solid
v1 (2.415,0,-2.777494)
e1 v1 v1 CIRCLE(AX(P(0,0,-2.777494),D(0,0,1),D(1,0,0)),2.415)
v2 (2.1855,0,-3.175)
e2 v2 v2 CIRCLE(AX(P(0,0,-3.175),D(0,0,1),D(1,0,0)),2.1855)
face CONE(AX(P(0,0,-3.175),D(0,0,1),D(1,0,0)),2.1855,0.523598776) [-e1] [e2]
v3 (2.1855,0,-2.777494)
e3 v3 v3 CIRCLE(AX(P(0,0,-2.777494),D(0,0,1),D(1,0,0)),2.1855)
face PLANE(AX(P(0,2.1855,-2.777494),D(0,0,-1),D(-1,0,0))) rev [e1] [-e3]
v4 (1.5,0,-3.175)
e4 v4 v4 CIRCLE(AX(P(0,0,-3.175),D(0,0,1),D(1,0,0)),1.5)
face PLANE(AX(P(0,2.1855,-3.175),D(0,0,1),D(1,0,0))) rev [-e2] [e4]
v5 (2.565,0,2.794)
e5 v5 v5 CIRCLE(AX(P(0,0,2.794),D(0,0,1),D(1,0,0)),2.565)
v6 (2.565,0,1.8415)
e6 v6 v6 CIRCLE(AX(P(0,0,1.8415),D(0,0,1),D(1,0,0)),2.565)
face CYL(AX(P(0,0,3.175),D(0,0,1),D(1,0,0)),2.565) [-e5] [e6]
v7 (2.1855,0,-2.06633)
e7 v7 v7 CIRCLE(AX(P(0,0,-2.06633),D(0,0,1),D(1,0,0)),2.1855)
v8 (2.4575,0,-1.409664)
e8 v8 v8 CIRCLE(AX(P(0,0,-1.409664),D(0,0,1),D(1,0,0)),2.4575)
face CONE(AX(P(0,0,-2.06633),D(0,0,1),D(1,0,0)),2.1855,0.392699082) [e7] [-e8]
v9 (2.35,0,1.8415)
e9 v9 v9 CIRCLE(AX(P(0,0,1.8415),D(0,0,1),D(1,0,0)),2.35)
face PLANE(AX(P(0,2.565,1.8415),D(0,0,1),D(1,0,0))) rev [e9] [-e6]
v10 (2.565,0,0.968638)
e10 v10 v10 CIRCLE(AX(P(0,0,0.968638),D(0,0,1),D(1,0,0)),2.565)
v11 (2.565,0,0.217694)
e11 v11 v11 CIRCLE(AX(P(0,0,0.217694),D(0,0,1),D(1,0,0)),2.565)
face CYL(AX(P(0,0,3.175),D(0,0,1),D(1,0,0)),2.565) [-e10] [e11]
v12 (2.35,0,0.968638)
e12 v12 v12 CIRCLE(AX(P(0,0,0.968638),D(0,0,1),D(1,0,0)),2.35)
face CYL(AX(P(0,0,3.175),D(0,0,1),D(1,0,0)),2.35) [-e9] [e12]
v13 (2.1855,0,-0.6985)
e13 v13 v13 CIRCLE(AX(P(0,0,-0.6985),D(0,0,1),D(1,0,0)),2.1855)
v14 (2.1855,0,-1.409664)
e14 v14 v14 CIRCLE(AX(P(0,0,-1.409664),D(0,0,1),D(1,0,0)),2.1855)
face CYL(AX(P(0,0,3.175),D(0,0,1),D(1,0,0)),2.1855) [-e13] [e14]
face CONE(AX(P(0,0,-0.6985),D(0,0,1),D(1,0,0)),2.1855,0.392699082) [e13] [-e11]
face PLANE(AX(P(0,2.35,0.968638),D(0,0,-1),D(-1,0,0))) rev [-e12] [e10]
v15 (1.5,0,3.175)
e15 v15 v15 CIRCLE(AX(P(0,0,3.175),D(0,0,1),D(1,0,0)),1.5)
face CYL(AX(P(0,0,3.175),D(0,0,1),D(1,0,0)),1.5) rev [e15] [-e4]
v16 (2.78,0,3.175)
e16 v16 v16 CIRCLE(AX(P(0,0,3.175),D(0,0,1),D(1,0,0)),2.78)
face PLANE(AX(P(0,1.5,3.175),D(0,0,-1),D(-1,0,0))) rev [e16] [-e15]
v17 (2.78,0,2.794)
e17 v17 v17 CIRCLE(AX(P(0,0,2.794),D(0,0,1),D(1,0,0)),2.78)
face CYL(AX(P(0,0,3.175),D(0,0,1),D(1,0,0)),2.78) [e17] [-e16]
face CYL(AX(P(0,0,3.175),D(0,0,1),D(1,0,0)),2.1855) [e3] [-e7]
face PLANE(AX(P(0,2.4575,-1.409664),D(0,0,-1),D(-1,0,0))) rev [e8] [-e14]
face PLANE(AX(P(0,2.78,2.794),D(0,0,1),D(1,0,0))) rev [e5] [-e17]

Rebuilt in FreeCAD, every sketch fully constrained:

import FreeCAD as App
import Part
import Sketcher

V = App.Vector
Q = App.Units.Quantity

doc = App.newDocument("Part")
body = doc.addObject("PartDesign::Body", "Body")

sketch1 = body.newObject("Sketcher::SketchObject", "Sketch")
sketch1.AttachmentSupport = (doc.getObject("YZ_Plane"), [""])
sketch1.MapMode = "FlatFace"
sketch1.addGeometry([
    Part.LineSegment(V(2.78, 3.17, 0), V(1.5, 3.17, 0)),
    Part.LineSegment(V(1.5, 3.17, 0), V(1.5, -3.17, 0)),
    Part.LineSegment(V(1.5, -3.17, 0), V(2.19, -3.17, 0)),
    Part.LineSegment(V(2.19, -3.17, 0), V(2.42, -2.78, 0)),
    Part.LineSegment(V(2.42, -2.78, 0), V(2.19, -2.78, 0)),
    Part.LineSegment(V(2.19, -2.78, 0), V(2.19, -2.07, 0)),
    Part.LineSegment(V(2.19, -2.07, 0), V(2.46, -1.41, 0)),
    Part.LineSegment(V(2.46, -1.41, 0), V(2.19, -1.41, 0)),
    Part.LineSegment(V(2.19, -1.41, 0), V(2.19, -0.7, 0)),
    Part.LineSegment(V(2.19, -0.7, 0), V(2.56, 0.22, 0)),
    Part.LineSegment(V(2.56, 0.22, 0), V(2.56, 0.97, 0)),
    Part.LineSegment(V(2.56, 0.97, 0), V(2.35, 0.97, 0)),
    Part.LineSegment(V(2.35, 0.97, 0), V(2.35, 1.84, 0)),
    Part.LineSegment(V(2.35, 1.84, 0), V(2.56, 1.84, 0)),
    Part.LineSegment(V(2.56, 1.84, 0), V(2.56, 2.79, 0)),
    Part.LineSegment(V(2.56, 2.79, 0), V(2.78, 2.79, 0)),
    Part.LineSegment(V(2.78, 2.79, 0), V(2.78, 3.17, 0)),
], False)
sketch1.addConstraint([
    Sketcher.Constraint("Coincident", 0, 2, 1, 1),
    Sketcher.Constraint("Coincident", 1, 2, 2, 1),
    Sketcher.Constraint("Coincident", 2, 2, 3, 1),
    Sketcher.Constraint("Coincident", 3, 2, 4, 1),
    Sketcher.Constraint("Coincident", 4, 2, 5, 1),
    Sketcher.Constraint("Coincident", 5, 2, 6, 1),
    Sketcher.Constraint("Coincident", 6, 2, 7, 1),
    Sketcher.Constraint("Coincident", 7, 2, 8, 1),
    Sketcher.Constraint("Coincident", 8, 2, 9, 1),
    Sketcher.Constraint("Coincident", 9, 2, 10, 1),
    Sketcher.Constraint("Coincident", 10, 2, 11, 1),
    Sketcher.Constraint("Coincident", 11, 2, 12, 1),
    Sketcher.Constraint("Coincident", 12, 2, 13, 1),
    Sketcher.Constraint("Coincident", 13, 2, 14, 1),
    Sketcher.Constraint("Coincident", 14, 2, 15, 1),
    Sketcher.Constraint("Coincident", 15, 2, 16, 1),
    Sketcher.Constraint("Coincident", 16, 2, 0, 1),
    Sketcher.Constraint("Horizontal", 0),
    Sketcher.Constraint("Vertical", 1),
    Sketcher.Constraint("Horizontal", 2),
    Sketcher.Constraint("Horizontal", 4),
    Sketcher.Constraint("Vertical", 5),
    Sketcher.Constraint("Horizontal", 7),
    Sketcher.Constraint("Vertical", 8),
    Sketcher.Constraint("Vertical", 10),
    Sketcher.Constraint("Horizontal", 11),
    Sketcher.Constraint("Vertical", 12),
    Sketcher.Constraint("Horizontal", 13),
    Sketcher.Constraint("Vertical", 14),
    Sketcher.Constraint("Horizontal", 15),
    Sketcher.Constraint("Vertical", 16),
    Sketcher.Constraint("Parallel", 6, 9),
    Sketcher.Constraint("Vertical", 2, 2, 4, 2),
    Sketcher.Constraint("Vertical", 5, 2, 7, 2),
    Sketcher.Constraint("Vertical", 10, 2, 13, 2),
    Sketcher.Constraint("Equal", 13, 15),
    Sketcher.Constraint("Equal", 5, 8),
    Sketcher.Constraint("Angle", 3, Q("60 deg")),
    Sketcher.Constraint("DistanceY", 1, 2, 1, 1, Q("0.25 in")),
    Sketcher.Constraint("Angle", 6, Q("67.5 deg")),
    Sketcher.Constraint("DistanceY", 8, 2, 12, 2, Q("0.1 in")),
    Sketcher.Constraint("DistanceY", 16, 1, 16, 2, Q("0.015 in")),
    Sketcher.Constraint("DistanceY", -1, 1, 14, 2, Q("0.11 in")),
    Sketcher.Constraint("DistanceY", 14, 1, 14, 2, Q("0.0375 in")),
    Sketcher.Constraint("DistanceX", 0, 2, 0, 1, 1.28),
    Sketcher.Constraint("DistanceX", 2, 1, 2, 2, 0.6855),
    Sketcher.Constraint("DistanceX", 4, 2, 4, 1, 0.2295),
    Sketcher.Constraint("DistanceX", 7, 2, 7, 1, 0.272),
    Sketcher.Constraint("DistanceX", 11, 2, 11, 1, 0.215),
    Sketcher.Constraint("DistanceY", 12, 1, 12, 2, 0.872862),
    Sketcher.Constraint("DistanceX", -1, 1, 0, 2, 1.5),
])
revolution = body.newObject("PartDesign::Revolution", "Revolution")
revolution.Profile = sketch1
revolution.ReferenceAxis = (sketch1, ["V_Axis"])
revolution.Angle = 360

doc.recompute()
